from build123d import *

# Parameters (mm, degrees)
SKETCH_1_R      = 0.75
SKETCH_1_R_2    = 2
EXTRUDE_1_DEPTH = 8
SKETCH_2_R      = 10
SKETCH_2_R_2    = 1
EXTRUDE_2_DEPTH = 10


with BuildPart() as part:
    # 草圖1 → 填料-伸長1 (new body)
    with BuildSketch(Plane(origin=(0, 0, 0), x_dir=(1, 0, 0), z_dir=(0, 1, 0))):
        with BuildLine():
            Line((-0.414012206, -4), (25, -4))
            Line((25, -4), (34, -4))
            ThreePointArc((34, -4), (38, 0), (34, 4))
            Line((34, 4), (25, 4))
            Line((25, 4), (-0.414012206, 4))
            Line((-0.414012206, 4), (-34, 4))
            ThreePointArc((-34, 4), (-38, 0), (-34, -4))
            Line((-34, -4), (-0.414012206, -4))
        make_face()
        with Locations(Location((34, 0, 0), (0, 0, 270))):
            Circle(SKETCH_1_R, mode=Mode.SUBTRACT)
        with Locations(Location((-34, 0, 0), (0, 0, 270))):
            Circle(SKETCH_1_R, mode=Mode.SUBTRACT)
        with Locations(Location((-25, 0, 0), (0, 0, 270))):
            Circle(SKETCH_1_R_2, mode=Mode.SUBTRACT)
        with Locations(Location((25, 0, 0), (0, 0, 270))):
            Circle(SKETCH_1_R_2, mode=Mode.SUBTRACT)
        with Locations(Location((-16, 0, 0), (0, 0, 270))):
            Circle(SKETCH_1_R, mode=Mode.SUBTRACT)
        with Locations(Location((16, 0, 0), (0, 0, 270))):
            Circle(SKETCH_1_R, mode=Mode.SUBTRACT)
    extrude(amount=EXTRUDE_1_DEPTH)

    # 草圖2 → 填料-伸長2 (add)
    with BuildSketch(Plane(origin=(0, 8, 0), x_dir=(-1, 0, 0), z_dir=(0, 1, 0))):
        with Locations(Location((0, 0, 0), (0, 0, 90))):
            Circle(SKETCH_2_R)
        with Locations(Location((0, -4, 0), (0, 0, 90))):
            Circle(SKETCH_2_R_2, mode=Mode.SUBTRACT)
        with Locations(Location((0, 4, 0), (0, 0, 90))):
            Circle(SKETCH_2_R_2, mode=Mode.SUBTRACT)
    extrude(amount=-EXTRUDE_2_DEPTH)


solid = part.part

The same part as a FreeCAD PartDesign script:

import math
import FreeCAD as App
import Part
import Sketcher

V = App.Vector
Q = App.Units.Quantity

doc = App.newDocument("Part")
body = doc.addObject("PartDesign::Body", "Body")

# Sketch on XZ plane
sketch1 = body.newObject("Sketcher::SketchObject", "Sketch")
sketch1.AttachmentSupport = (doc.getObject("XZ_Plane"), [""])
sketch1.MapMode = "FlatFace"
sketch1.addGeometry(Part.ArcOfCircle(Part.Circle(V(34, 0, 0), V(0, 0, 1), 4), math.radians(-90), math.radians(90)), False)
sketch1.addGeometry(Part.LineSegment(V(34, -4, 0), V(-34, -4, 0)), False)
sketch1.addGeometry(Part.ArcOfCircle(Part.Circle(V(-34, 0, 0), V(0, 0, 1), 4), math.radians(90), math.radians(270)), False)
sketch1.addGeometry(Part.LineSegment(V(-34, 4, 0), V(34, 4, 0)), False)
sketch1.addGeometry(Part.Circle(V(-34, 0, 0), V(0, 0, 1), 0.75), False)
sketch1.addGeometry(Part.Circle(V(-25, 0, 0), V(0, 0, 1), 2), False)
sketch1.addGeometry(Part.Circle(V(-16, 0, 0), V(0, 0, 1), 0.75), False)
sketch1.addGeometry(Part.Circle(V(16, 0, 0), V(0, 0, 1), 0.75), False)
sketch1.addGeometry(Part.Circle(V(25, 0, 0), V(0, 0, 1), 2), False)
sketch1.addGeometry(Part.Circle(V(34, 0, 0), V(0, 0, 1), 0.75), False)
sketch1.addConstraint(Sketcher.Constraint("Tangent", 0, 1, 1, 1))
sketch1.addConstraint(Sketcher.Constraint("Tangent", 1, 2, 2, 2))
sketch1.addConstraint(Sketcher.Constraint("Tangent", 2, 1, 3, 1))
sketch1.addConstraint(Sketcher.Constraint("Tangent", 3, 2, 0, 2))
sketch1.addConstraint(Sketcher.Constraint("Horizontal", 1))
sketch1.addConstraint(Sketcher.Constraint("Horizontal", 3))
sketch1.addConstraint(Sketcher.Constraint("Coincident", 4, 3, 2, 3))
sketch1.addConstraint(Sketcher.Constraint("Coincident", 9, 3, 0, 3))
sketch1.addConstraint(Sketcher.Constraint("Equal", 4, 6))
sketch1.addConstraint(Sketcher.Constraint("Equal", 6, 7))
sketch1.addConstraint(Sketcher.Constraint("Equal", 5, 8))
sketch1.addConstraint(Sketcher.Constraint("Equal", 7, 9))
sketch1.addConstraint(Sketcher.Constraint("Symmetric", 0, 3, 2, 3, -1, 1))
sketch1.addConstraint(Sketcher.Constraint("Symmetric", 6, 3, 7, 3, -1, 1))
sketch1.addConstraint(Sketcher.Constraint("Symmetric", 5, 3, 8, 3, -1, 1))
sketch1.addConstraint(Sketcher.Constraint("PointOnObject", 5, 3, -1))
sketch1.addConstraint(Sketcher.Constraint("PointOnObject", 6, 3, -1))
sketch1.addConstraint(Sketcher.Constraint("Diameter", 5, Q("4 mm")))
sketch1.addConstraint(Sketcher.Constraint("Radius", 0, Q("4 mm")))
sketch1.addConstraint(Sketcher.Constraint("Diameter", 4, Q("1.5 mm")))
sketch1.addConstraint(Sketcher.Constraint("DistanceX", 1, 2, 1, 1, Q("68 mm")))
sketch1.addConstraint(Sketcher.Constraint("DistanceX", 5, 3, -1, 1, Q("25 mm")))
sketch1.addConstraint(Sketcher.Constraint("DistanceX", 6, 3, -1, 1, Q("16 mm")))
pad1 = body.newObject("PartDesign::Pad", "Pad")
pad1.Profile = sketch1
pad1.Length = 8
pad1.Reversed = True

# Sketch on XZ plane
sketch2 = body.newObject("Sketcher::SketchObject", "Sketch001")
sketch2.AttachmentSupport = (doc.getObject("XZ_Plane"), [""])
sketch2.MapMode = "FlatFace"
sketch2.AttachmentOffset = App.Placement(V(0, 0, -8), App.Rotation())
sketch2.addGeometry(Part.Circle(V(0, 0, 0), V(0, 0, 1), 10), False)
sketch2.addGeometry(Part.Circle(V(0, -4, 0), V(0, 0, 1), 1), False)
sketch2.addGeometry(Part.Circle(V(0, 4, 0), V(0, 0, 1), 1), False)
sketch2.addConstraint(Sketcher.Constraint("Coincident", 0, 3, -1, 1))
sketch2.addConstraint(Sketcher.Constraint("Equal", 1, 2))
sketch2.addConstraint(Sketcher.Constraint("Symmetric", 1, 3, 2, 3, -1, 1))
sketch2.addConstraint(Sketcher.Constraint("PointOnObject", 1, 3, -2))
sketch2.addConstraint(Sketcher.Constraint("Diameter", 0, Q("20 mm")))
sketch2.addConstraint(Sketcher.Constraint("Diameter", 1, Q("2 mm")))
sketch2.addConstraint(Sketcher.Constraint("DistanceY", 1, 3, -1, 1, Q("4 mm")))
pad2 = body.newObject("PartDesign::Pad", "Pad001")
pad2.Profile = sketch2
pad2.Length = 10

doc.recompute()
